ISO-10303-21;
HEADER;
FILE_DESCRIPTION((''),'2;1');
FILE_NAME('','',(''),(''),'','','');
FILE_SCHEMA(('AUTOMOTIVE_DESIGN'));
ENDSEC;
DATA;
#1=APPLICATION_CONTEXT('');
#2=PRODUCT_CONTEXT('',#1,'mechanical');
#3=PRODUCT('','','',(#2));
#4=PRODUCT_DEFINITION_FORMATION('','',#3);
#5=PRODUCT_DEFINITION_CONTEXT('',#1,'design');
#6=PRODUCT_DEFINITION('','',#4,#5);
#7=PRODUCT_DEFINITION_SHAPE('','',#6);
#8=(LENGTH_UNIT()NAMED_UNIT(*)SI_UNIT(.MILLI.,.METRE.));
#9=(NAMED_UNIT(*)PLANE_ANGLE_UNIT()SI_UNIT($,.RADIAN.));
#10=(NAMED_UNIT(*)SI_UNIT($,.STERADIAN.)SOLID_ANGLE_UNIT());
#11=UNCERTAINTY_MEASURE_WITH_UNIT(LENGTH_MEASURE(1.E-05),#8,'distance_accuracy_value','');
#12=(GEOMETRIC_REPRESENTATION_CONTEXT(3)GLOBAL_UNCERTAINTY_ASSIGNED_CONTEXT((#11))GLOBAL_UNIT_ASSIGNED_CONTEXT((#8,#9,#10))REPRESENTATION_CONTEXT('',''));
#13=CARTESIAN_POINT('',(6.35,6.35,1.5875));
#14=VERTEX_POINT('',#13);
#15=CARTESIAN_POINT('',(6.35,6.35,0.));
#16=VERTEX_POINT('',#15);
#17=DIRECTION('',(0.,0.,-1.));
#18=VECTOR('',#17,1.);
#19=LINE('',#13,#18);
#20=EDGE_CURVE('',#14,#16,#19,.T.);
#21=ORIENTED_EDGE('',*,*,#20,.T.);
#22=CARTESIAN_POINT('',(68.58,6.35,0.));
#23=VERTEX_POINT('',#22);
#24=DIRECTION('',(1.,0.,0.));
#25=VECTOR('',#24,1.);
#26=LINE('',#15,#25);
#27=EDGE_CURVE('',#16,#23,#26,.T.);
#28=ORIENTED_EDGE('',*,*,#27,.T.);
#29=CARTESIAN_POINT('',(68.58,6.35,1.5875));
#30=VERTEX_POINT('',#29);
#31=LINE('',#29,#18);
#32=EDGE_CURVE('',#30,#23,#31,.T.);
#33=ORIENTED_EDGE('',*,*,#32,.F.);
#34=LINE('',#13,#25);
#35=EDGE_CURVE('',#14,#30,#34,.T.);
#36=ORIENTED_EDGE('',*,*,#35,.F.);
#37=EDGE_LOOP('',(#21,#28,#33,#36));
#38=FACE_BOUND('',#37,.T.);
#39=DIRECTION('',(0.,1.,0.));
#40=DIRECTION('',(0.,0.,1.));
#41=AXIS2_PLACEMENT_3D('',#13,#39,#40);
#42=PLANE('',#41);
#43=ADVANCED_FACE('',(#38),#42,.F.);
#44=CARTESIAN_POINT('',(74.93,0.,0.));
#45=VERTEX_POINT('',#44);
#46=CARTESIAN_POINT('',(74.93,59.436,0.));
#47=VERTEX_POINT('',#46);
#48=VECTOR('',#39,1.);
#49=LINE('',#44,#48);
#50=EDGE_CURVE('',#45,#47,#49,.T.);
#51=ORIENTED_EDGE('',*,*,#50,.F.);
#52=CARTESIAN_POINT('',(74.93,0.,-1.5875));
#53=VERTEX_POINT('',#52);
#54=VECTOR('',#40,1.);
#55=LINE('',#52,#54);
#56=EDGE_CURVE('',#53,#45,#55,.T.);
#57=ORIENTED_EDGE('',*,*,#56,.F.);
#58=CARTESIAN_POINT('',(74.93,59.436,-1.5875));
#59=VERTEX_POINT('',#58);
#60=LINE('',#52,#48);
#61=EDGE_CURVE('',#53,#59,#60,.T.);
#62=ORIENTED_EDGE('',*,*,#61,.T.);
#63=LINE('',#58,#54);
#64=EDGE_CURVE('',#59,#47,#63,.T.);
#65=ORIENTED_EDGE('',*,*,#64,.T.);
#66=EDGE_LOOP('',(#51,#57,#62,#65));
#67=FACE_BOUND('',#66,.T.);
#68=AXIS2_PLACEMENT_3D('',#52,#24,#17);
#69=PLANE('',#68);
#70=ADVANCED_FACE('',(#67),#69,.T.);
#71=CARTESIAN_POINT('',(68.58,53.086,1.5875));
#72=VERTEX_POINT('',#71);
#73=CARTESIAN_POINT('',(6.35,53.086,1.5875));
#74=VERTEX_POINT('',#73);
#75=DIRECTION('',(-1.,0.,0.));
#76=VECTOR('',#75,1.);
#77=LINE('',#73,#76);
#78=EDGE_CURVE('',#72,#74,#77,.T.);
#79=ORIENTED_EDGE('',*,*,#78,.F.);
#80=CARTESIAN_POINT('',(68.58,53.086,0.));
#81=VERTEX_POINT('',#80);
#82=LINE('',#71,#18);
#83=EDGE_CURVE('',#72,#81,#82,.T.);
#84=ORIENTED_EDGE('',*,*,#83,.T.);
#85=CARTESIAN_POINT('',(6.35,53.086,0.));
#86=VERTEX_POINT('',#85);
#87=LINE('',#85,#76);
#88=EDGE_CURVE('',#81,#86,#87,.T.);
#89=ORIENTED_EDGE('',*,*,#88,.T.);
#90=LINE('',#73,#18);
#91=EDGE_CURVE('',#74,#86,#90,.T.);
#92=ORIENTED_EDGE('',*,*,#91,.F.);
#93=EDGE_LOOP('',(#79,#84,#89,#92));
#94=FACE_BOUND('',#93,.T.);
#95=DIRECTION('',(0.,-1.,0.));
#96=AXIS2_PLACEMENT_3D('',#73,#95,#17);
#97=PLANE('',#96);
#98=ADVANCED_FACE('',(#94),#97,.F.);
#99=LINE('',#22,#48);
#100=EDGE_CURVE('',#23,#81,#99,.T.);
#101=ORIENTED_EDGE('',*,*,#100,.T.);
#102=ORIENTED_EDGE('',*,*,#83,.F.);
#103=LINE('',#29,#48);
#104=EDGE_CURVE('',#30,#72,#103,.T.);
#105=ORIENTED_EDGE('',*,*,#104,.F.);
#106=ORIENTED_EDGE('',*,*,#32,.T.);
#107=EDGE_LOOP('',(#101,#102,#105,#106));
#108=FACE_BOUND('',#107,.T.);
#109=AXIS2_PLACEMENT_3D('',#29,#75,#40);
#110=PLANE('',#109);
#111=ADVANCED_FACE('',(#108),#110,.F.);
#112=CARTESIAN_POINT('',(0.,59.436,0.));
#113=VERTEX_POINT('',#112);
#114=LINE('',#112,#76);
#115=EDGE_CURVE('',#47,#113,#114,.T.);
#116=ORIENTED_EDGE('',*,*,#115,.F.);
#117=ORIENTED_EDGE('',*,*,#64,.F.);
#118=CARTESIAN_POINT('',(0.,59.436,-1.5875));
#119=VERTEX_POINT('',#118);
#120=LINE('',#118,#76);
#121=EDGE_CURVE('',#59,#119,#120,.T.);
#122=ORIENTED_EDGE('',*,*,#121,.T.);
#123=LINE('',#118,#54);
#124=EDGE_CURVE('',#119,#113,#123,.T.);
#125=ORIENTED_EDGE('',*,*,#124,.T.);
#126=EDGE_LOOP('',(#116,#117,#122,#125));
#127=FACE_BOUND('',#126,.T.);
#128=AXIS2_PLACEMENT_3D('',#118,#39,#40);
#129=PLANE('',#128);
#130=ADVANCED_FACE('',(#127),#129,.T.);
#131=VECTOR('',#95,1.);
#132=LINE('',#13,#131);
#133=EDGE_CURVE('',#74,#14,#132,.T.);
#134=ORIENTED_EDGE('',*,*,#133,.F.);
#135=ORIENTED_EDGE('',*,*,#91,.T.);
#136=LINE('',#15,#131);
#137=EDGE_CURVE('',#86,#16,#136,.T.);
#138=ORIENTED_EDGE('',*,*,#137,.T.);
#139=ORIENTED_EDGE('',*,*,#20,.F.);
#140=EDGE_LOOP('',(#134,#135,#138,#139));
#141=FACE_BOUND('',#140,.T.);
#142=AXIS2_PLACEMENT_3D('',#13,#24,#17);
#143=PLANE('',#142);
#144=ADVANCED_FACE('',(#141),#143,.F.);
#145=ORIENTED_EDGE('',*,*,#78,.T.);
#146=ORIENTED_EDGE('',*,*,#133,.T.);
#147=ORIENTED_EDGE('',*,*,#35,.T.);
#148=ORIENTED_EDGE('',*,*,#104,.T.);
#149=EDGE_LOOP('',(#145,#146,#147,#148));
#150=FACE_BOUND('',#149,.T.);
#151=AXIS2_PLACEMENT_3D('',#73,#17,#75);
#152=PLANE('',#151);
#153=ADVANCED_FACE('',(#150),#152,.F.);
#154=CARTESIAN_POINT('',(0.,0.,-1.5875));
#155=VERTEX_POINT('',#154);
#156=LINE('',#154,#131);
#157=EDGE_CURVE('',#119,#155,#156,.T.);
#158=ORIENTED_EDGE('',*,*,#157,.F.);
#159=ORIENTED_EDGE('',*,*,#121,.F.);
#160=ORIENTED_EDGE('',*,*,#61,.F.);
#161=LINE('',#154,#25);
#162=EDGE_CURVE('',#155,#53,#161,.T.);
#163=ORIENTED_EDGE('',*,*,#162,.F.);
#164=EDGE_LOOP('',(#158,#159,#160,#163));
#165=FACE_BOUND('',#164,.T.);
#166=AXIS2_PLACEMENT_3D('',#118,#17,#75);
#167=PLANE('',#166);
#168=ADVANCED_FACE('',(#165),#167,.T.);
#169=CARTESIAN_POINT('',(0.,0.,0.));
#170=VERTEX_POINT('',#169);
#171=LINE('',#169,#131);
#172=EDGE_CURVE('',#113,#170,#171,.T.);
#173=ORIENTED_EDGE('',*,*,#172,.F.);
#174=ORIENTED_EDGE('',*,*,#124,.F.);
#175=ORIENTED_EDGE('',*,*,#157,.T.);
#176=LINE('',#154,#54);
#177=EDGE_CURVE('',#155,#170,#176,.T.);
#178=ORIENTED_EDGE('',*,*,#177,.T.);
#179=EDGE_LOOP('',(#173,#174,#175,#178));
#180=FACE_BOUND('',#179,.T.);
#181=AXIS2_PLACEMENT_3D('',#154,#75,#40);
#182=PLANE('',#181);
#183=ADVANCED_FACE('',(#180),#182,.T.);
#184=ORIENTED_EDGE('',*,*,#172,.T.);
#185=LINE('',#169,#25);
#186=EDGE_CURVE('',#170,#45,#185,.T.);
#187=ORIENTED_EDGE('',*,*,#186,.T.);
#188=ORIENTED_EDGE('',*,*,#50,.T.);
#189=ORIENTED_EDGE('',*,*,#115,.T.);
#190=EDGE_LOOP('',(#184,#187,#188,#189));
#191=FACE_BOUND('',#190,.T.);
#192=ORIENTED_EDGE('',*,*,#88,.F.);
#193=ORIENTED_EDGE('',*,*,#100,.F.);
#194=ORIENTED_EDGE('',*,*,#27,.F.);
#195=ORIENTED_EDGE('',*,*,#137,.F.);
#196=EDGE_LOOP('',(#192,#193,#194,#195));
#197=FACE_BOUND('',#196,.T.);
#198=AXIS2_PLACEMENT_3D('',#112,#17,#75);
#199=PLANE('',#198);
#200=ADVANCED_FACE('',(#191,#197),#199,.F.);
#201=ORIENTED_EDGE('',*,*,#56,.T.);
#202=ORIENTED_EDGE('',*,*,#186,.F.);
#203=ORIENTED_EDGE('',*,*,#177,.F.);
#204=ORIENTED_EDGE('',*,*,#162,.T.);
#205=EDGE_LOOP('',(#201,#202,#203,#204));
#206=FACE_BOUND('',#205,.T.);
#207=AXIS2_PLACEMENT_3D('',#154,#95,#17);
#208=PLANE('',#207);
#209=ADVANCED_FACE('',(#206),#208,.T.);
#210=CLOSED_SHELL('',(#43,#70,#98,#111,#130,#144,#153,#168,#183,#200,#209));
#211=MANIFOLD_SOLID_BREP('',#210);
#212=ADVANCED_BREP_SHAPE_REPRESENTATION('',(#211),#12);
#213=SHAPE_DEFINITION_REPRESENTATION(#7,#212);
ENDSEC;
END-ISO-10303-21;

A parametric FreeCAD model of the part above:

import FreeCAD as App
import Part
import Sketcher

V = App.Vector
Q = App.Units.Quantity

doc = App.newDocument("Part")
body = doc.addObject("PartDesign::Body", "Body")

# Sketch on XY plane
sketch1 = body.newObject("Sketcher::SketchObject", "Sketch")
sketch1.AttachmentSupport = (doc.getObject("XY_Plane"), [""])
sketch1.MapMode = "FlatFace"
sketch1.addGeometry([
    Part.LineSegment(V(0, 59, 0), V(0, 0, 0)),
    Part.LineSegment(V(0, 0, 0), V(75, 0, 0)),
    Part.LineSegment(V(75, 0, 0), V(75, 59, 0)),
    Part.LineSegment(V(75, 59, 0), V(0, 59, 0)),
], False)
sketch1.addConstraint([
    Sketcher.Constraint("Coincident", 0, 2, 1, 1),
    Sketcher.Constraint("Coincident", 1, 2, 2, 1),
    Sketcher.Constraint("Coincident", 2, 2, 3, 1),
    Sketcher.Constraint("Coincident", 3, 2, 0, 1),
    Sketcher.Constraint("Vertical", 0),
    Sketcher.Constraint("Horizontal", 1),
    Sketcher.Constraint("Vertical", 2),
    Sketcher.Constraint("Horizontal", 3),
    Sketcher.Constraint("Coincident", 0, 2, -1, 1),
    Sketcher.Constraint("DistanceX", 1, 1, 1, 2, Q("2.95 in")),
    Sketcher.Constraint("DistanceY", 0, 2, 0, 1, Q("2.34 in")),
])
pad1 = body.newObject("PartDesign::Pad", "Pad")
pad1.Profile = sketch1
pad1.Length = Q("0.0625 in")
pad1.Reversed = True

# Sketch on XY plane
sketch2 = body.newObject("Sketcher::SketchObject", "Sketch001")
sketch2.AttachmentSupport = (doc.getObject("XY_Plane"), [""])
sketch2.MapMode = "FlatFace"
sketch2.addGeometry([
    Part.LineSegment(V(6, 53, 0), V(6, 6, 0)),
    Part.LineSegment(V(6, 6, 0), V(69, 6, 0)),
    Part.LineSegment(V(69, 6, 0), V(69, 53, 0)),
    Part.LineSegment(V(69, 53, 0), V(6, 53, 0)),
], False)
sketch2.addConstraint([
    Sketcher.Constraint("Coincident", 0, 2, 1, 1),
    Sketcher.Constraint("Coincident", 1, 2, 2, 1),
    Sketcher.Constraint("Coincident", 2, 2, 3, 1),
    Sketcher.Constraint("Coincident", 3, 2, 0, 1),
    Sketcher.Constraint("Vertical", 0),
    Sketcher.Constraint("Horizontal", 1),
    Sketcher.Constraint("Vertical", 2),
    Sketcher.Constraint("Horizontal", 3),
    Sketcher.Constraint("DistanceX", 1, 1, 1, 2, Q("2.45 in")),
    Sketcher.Constraint("DistanceY", 0, 2, 0, 1, Q("1.84 in")),
    Sketcher.Constraint("DistanceX", -1, 1, 1, 2, Q("2.7 in")),
    Sketcher.Constraint("DistanceY", -1, 1, 0, 2, Q("0.25 in")),
])
pad2 = body.newObject("PartDesign::Pad", "Pad001")
pad2.Profile = sketch2
pad2.Length = Q("0.0625 in")

doc.recompute()
